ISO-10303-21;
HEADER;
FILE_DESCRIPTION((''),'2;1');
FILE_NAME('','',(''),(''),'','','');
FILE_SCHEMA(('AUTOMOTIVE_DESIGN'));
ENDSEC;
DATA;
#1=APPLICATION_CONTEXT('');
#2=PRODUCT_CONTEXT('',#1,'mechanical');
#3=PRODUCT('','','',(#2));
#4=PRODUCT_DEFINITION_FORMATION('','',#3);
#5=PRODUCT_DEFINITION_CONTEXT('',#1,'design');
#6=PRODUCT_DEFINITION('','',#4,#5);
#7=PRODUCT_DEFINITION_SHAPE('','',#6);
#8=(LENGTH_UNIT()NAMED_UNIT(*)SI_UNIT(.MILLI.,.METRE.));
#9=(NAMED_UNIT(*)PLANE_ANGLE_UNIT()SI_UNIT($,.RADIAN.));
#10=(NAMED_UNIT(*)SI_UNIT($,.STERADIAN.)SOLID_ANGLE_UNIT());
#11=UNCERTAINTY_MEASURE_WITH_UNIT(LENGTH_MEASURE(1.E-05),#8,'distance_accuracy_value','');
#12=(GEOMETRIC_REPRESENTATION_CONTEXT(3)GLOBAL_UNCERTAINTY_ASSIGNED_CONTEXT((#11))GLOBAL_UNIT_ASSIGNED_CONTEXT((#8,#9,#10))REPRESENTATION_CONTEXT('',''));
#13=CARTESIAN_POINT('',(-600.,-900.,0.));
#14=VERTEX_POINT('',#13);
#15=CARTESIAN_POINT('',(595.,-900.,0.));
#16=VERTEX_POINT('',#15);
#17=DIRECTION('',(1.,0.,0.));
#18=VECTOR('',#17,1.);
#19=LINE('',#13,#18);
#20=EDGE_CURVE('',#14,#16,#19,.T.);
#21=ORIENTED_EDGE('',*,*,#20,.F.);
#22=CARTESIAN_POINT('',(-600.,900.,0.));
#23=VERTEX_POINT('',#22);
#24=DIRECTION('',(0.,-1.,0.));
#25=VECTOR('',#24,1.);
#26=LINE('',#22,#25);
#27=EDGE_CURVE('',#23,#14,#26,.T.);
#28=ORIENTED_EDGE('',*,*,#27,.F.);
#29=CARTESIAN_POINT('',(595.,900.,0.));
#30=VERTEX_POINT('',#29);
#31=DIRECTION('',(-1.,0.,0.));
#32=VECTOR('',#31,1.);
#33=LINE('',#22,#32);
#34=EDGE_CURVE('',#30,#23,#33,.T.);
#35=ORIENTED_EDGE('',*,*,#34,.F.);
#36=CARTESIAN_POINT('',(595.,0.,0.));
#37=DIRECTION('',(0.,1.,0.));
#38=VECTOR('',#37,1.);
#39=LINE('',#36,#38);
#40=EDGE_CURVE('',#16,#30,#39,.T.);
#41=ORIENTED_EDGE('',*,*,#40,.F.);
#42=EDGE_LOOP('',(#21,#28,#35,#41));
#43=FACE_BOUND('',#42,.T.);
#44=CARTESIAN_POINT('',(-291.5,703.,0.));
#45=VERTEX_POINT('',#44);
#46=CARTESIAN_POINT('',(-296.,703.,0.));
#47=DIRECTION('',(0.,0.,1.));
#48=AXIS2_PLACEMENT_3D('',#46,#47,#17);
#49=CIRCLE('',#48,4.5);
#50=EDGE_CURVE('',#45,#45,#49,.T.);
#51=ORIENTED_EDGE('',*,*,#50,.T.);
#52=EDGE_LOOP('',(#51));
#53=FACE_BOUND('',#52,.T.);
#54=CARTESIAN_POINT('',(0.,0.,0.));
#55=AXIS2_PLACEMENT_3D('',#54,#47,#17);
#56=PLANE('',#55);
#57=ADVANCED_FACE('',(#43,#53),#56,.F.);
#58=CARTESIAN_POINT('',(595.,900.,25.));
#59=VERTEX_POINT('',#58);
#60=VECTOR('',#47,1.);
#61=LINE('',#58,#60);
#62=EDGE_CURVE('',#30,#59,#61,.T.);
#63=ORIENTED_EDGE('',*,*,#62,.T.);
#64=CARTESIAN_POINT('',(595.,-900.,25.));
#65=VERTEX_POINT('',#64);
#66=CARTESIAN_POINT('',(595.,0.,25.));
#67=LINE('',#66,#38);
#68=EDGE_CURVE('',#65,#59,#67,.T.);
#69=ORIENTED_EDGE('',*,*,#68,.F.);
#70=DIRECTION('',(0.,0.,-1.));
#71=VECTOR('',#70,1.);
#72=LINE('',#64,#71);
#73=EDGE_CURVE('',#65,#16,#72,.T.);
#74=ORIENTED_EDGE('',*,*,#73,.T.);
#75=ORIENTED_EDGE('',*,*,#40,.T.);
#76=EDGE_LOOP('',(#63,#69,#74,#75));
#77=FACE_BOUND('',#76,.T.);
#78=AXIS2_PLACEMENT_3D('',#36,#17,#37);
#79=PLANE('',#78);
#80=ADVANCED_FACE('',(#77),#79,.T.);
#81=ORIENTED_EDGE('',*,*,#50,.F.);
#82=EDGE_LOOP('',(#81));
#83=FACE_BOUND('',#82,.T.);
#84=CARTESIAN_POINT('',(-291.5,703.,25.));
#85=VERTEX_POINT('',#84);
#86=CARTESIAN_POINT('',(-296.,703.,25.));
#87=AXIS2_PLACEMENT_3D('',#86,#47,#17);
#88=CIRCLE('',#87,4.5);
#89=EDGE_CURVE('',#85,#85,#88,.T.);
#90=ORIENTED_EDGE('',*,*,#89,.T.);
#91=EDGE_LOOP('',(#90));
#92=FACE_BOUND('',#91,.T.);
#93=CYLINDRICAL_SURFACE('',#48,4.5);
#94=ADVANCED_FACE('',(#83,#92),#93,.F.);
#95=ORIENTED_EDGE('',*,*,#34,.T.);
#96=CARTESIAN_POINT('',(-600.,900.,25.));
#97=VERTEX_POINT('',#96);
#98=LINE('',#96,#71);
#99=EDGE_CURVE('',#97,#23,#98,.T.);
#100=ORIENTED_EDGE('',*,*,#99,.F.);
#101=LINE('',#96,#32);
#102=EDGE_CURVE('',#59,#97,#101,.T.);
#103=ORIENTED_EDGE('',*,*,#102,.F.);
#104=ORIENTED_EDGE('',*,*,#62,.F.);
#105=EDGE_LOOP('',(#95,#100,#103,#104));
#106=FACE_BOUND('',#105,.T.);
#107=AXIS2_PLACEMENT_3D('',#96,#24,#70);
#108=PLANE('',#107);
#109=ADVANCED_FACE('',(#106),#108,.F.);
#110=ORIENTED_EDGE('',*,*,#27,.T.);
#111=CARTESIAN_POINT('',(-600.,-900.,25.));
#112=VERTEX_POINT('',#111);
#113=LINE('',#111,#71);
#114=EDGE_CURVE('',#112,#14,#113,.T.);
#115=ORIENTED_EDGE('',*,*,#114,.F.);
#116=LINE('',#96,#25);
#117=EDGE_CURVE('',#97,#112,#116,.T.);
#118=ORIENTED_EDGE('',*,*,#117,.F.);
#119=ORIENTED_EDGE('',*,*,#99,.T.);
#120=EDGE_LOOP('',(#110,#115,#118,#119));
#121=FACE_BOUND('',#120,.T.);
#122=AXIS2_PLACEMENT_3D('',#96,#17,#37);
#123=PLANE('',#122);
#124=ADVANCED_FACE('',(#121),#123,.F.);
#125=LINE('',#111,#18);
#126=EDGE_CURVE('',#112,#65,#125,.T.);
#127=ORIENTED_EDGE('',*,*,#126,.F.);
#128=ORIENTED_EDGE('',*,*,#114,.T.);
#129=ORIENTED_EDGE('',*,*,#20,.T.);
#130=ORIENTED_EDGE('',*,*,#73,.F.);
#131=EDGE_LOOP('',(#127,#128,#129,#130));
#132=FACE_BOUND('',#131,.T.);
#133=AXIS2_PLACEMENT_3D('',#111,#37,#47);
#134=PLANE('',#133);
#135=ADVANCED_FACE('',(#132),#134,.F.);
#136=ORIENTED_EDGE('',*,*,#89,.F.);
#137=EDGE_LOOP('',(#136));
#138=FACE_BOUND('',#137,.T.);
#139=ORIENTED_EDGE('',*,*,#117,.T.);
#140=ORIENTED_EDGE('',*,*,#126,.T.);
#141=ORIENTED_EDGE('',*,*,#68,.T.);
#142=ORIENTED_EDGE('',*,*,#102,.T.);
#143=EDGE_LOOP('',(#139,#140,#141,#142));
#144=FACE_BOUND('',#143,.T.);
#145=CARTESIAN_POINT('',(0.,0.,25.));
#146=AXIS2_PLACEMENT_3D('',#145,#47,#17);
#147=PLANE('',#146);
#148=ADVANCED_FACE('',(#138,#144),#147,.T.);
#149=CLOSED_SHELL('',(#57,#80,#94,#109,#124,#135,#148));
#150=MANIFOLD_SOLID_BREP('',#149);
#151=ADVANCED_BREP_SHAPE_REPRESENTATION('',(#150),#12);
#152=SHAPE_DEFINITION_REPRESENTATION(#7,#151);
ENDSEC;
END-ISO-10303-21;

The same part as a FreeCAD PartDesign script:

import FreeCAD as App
import Part
import Sketcher
Q = App.Units.Quantity


def add_polygon(sketch, points):
    """Adds a closed chain of lines whose ends are joined by coincident constraints."""
    first, n = sketch.GeometryCount, len(points)
    for a, b in zip(points, points[1:] + points[:1]):
        sketch.addGeometry(Part.LineSegment(App.Vector(*a, 0), App.Vector(*b, 0)), False)
    for i in range(n):
        sketch.addConstraint(Sketcher.Constraint("Coincident", first + i, 2, first + (i + 1) % n, 1))

doc = App.newDocument("Part")
body = doc.addObject("PartDesign::Body", "Body")

# Sketch on XY plane
sketch1 = body.newObject("Sketcher::SketchObject", "Sketch")
sketch1.AttachmentSupport = (doc.getObject("XY_Plane"), [""])
sketch1.MapMode = "FlatFace"
add_polygon(sketch1, [(-600, 900), (-600, -900), (600, -900), (600, 900)])  # lines 0-3
sketch1.addConstraint([
    Sketcher.Constraint("Vertical", 0),
    Sketcher.Constraint("Horizontal", 1),
    Sketcher.Constraint("Vertical", 2),
    Sketcher.Constraint("Horizontal", 3),
    Sketcher.Constraint("Symmetric", 0, 2, 2, 2, -1, 1),
    Sketcher.Constraint("DistanceX", 1, 1, 1, 2, Q("1200 mm")),
    Sketcher.Constraint("DistanceY", 0, 2, 0, 1, Q("1800 mm")),
])
pad1 = body.newObject("PartDesign::Pad", "Pad")
pad1.Profile = sketch1
pad1.Length = 25

# Sketch on XY plane
sketch2 = body.newObject("Sketcher::SketchObject", "Sketch001")
sketch2.AttachmentSupport = (doc.getObject("XY_Plane"), [""])
sketch2.MapMode = "FlatFace"
sketch2.AttachmentOffset = App.Placement(App.Vector(0, 0, 25), App.Rotation())
sketch2.addGeometry(Part.Circle(App.Vector(-296, 703, 0), App.Vector(0, 0, 1), 4.5), False)
sketch2.addConstraint([
    Sketcher.Constraint("Diameter", 0, Q("9 mm")),
    Sketcher.Constraint("DistanceX", 0, 3, -1, 1, Q("296 mm")),
    Sketcher.Constraint("DistanceY", -1, 1, 0, 3, Q("703 mm")),
])
pocket1 = body.newObject("PartDesign::Pocket", "Pocket")
pocket1.Profile = sketch2
pocket1.Type = "ThroughAll"

# Sketch on YZ plane
sketch3 = body.newObject("Sketcher::SketchObject", "Sketch002")
sketch3.AttachmentSupport = (doc.getObject("YZ_Plane"), [""])
sketch3.MapMode = "FlatFace"
sketch3.AttachmentOffset = App.Placement(App.Vector(0, 0, 600), App.Rotation())
add_polygon(sketch3, [(1234, 909), (-1380, 909), (-1380, -1010), (1234, -1010)])  # lines 0-3
sketch3.addConstraint([
    Sketcher.Constraint("Horizontal", 0),
    Sketcher.Constraint("Vertical", 1),
    Sketcher.Constraint("Horizontal", 2),
    Sketcher.Constraint("Vertical", 3),
    Sketcher.Constraint("DistanceX", 0, 2, 0, 1, Q("2614.541367 mm")),
    Sketcher.Constraint("DistanceY", 1, 2, 1, 1, Q("1918.317887 mm")),
    Sketcher.Constraint("DistanceY", 1, 2, -1, 1, Q("1009.615322 mm")),
    Sketcher.Constraint("DistanceX", 0, 2, -1, 1, Q("1380.102572 mm")),
])
pocket2 = body.newObject("PartDesign::Pocket", "Pocket001")
pocket2.Profile = sketch3
pocket2.Length = 5

doc.recompute()
